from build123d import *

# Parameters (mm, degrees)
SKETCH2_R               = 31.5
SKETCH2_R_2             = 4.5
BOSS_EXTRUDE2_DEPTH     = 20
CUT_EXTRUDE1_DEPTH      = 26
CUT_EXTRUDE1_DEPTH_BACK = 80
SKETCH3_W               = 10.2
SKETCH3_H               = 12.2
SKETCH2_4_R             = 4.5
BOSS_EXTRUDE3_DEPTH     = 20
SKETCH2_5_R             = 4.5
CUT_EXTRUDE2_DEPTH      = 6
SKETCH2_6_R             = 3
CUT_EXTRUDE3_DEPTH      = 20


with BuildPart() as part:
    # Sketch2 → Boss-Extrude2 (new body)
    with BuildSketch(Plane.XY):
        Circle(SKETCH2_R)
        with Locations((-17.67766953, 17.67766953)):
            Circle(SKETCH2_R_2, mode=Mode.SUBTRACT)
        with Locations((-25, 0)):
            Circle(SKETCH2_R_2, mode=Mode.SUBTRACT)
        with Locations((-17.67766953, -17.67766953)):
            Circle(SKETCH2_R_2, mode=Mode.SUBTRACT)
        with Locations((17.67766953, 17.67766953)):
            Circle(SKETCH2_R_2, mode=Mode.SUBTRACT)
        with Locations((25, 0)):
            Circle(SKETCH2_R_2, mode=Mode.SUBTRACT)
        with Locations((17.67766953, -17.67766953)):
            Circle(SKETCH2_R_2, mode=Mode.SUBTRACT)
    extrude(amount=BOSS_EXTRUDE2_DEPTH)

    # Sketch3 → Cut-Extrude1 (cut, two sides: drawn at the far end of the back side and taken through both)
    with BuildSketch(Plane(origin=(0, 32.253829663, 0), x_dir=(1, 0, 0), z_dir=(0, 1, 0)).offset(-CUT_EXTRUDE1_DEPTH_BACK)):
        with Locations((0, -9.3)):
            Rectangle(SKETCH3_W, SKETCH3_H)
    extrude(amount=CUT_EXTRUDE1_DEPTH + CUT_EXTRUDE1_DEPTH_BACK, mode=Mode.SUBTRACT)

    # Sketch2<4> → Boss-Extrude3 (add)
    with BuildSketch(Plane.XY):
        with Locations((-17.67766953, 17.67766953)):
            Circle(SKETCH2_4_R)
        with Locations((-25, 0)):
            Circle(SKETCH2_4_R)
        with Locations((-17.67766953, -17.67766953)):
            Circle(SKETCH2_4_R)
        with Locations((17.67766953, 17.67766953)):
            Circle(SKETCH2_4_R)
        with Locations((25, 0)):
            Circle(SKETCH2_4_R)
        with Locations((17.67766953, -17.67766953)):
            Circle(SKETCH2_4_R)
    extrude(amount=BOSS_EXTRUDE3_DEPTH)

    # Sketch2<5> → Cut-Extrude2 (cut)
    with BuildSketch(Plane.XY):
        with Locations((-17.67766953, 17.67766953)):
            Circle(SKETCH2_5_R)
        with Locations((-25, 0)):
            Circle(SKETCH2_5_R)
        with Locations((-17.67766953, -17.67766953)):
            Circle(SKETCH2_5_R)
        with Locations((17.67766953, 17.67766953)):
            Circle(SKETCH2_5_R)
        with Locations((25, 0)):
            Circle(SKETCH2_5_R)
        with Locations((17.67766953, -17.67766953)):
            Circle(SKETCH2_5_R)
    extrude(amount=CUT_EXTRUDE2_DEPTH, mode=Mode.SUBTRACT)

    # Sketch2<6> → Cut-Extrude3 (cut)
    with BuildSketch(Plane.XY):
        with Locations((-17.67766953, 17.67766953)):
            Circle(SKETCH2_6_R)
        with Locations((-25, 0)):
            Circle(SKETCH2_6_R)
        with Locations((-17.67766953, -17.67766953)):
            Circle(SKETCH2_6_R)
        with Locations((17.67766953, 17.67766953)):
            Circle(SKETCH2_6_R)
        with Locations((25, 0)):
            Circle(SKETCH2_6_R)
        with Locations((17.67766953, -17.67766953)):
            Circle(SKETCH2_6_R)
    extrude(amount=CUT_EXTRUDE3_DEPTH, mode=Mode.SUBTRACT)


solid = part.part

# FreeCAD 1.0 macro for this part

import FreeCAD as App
import Part
import Sketcher

V = App.Vector

doc = App.newDocument("Part")
params = doc.addObject("Spreadsheet::Sheet", "Params")
for row, (alias, value) in enumerate([
    ("sketch1_diameter", "63 mm"),
    ("sketch1_diameter2", "9 mm"),
    ("pad1_length", "20 mm"),
    ("sketch2_width", "10.2 mm"),
    ("sketch2_height", "12.2 mm"),
    ("sketch3_diameter", "9 mm"),
    ("pad2_length", "20 mm"),
    ("sketch4_diameter", "9 mm"),
    ("pocket2_length", "6 mm"),
    ("sketch5_diameter", "6 mm"),
    ("pocket3_length", "20 mm"),
], start=1):
    params.set(f"A{row}", alias)
    params.set(f"B{row}", "=" + value)
    params.setAlias(f"B{row}", alias)

body = doc.addObject("PartDesign::Body", "Body")

sketch1 = body.newObject("Sketcher::SketchObject", "Sketch")
sketch1.AttachmentSupport = (doc.getObject("XY_Plane"), [""])
sketch1.MapMode = "FlatFace"
sketch1.addGeometry(Part.Circle(V(0, 0, 0), V(0, 0, 1), 31.5), False)
sketch1.addGeometry(Part.Circle(V(-17.7, -17.7, 0), V(0, 0, 1), 4.5), False)
sketch1.addGeometry(Part.Circle(V(-25, 0, 0), V(0, 0, 1), 4.5), False)
sketch1.addGeometry(Part.Circle(V(17.7, -17.7, 0), V(0, 0, 1), 4.5), False)
sketch1.addGeometry(Part.Circle(V(25, 0, 0), V(0, 0, 1), 4.5), False)
sketch1.addGeometry(Part.Circle(V(-17.7, 17.7, 0), V(0, 0, 1), 4.5), False)
sketch1.addGeometry(Part.Circle(V(17.7, 17.7, 0), V(0, 0, 1), 4.5), False)
sketch1.addConstraint(Sketcher.Constraint("Coincident", 0, 3, -1, 1))
sketch1.addConstraint(Sketcher.Constraint("Equal", 1, 2))
sketch1.addConstraint(Sketcher.Constraint("Equal", 2, 3))
sketch1.addConstraint(Sketcher.Constraint("Equal", 3, 4))
sketch1.addConstraint(Sketcher.Constraint("Equal", 4, 5))
sketch1.addConstraint(Sketcher.Constraint("Equal", 5, 6))
sketch1.addConstraint(Sketcher.Constraint("Symmetric", 2, 3, 4, 3, -1, 1))
sketch1.addConstraint(Sketcher.Constraint("Symmetric", 3, 3, 5, 3, -1, 1))
sketch1.addConstraint(Sketcher.Constraint("Symmetric", 1, 3, 6, 3, -1, 1))
sketch1.addConstraint(Sketcher.Constraint("Symmetric", 1, 3, 3, 3, -2))
sketch1.addConstraint(Sketcher.Constraint("PointOnObject", 2, 3, -1))
sketch1.addConstraint(Sketcher.Constraint("Diameter", 0, 63.0))
sketch1.addConstraint(Sketcher.Constraint("Diameter", 1, 9.0))
sketch1.addConstraint(Sketcher.Constraint("DistanceX", 2, 3, -1, 1, 25.0))
sketch1.addConstraint(Sketcher.Constraint("DistanceX", 1, 3, -1, 1, 17.67767))
sketch1.addConstraint(Sketcher.Constraint("DistanceY", 1, 3, -1, 1, 17.67767))
sketch1.setExpression("Constraints[11]", "Params.sketch1_diameter")
sketch1.setExpression("Constraints[12]", "Params.sketch1_diameter2")
pad1 = body.newObject("PartDesign::Pad", "Pad")
pad1.Profile = sketch1
pad1.setExpression("Length", "Params.pad1_length")

sketch2 = body.newObject("Sketcher::SketchObject", "Sketch001")
sketch2.AttachmentSupport = (doc.getObject("XZ_Plane"), [""])
sketch2.MapMode = "FlatFace"
sketch2.AttachmentOffset = App.Placement(V(0, 0, -32.25383), App.Rotation())
sketch2.addGeometry(Part.LineSegment(V(-5, 3, 0), V(-5, 15, 0)), False)
sketch2.addGeometry(Part.LineSegment(V(-5, 15, 0), V(5, 15, 0)), False)
sketch2.addGeometry(Part.LineSegment(V(5, 15, 0), V(5, 3, 0)), False)
sketch2.addGeometry(Part.LineSegment(V(5, 3, 0), V(-5, 3, 0)), False)
sketch2.addConstraint(Sketcher.Constraint("Coincident", 0, 2, 1, 1))
sketch2.addConstraint(Sketcher.Constraint("Coincident", 1, 2, 2, 1))
sketch2.addConstraint(Sketcher.Constraint("Coincident", 2, 2, 3, 1))
sketch2.addConstraint(Sketcher.Constraint("Coincident", 3, 2, 0, 1))
sketch2.addConstraint(Sketcher.Constraint("Vertical", 0))
sketch2.addConstraint(Sketcher.Constraint("Horizontal", 1))
sketch2.addConstraint(Sketcher.Constraint("Vertical", 2))
sketch2.addConstraint(Sketcher.Constraint("Horizontal", 3))
sketch2.addConstraint(Sketcher.Constraint("DistanceX", 1, 1, 1, 2, 10.2))
sketch2.addConstraint(Sketcher.Constraint("DistanceY", 0, 1, 0, 2, 12.2))
sketch2.addConstraint(Sketcher.Constraint("DistanceX", 0, 2, -1, 1, 5.1))
sketch2.addConstraint(Sketcher.Constraint("DistanceY", -1, 1, 0, 2, 15.4))
sketch2.setExpression("Constraints[8]", "Params.sketch2_width")
sketch2.setExpression("Constraints[9]", "Params.sketch2_height")
pocket1 = body.newObject("PartDesign::Pocket", "Pocket")
pocket1.Profile = sketch2
pocket1.Type = "ThroughAll"
pocket1.Midplane = True

sketch3 = body.newObject("Sketcher::SketchObject", "Sketch002")
sketch3.AttachmentSupport = (doc.getObject("XY_Plane"), [""])
sketch3.MapMode = "FlatFace"
sketch3.addGeometry(Part.Circle(V(-17.7, 17.7, 0), V(0, 0, 1), 4.5), False)
sketch3.addGeometry(Part.Circle(V(-25, 0, 0), V(0, 0, 1), 4.5), False)
sketch3.addGeometry(Part.Circle(V(-17.7, -17.7, 0), V(0, 0, 1), 4.5), False)
sketch3.addGeometry(Part.Circle(V(17.7, 17.7, 0), V(0, 0, 1), 4.5), False)
sketch3.addGeometry(Part.Circle(V(25, 0, 0), V(0, 0, 1), 4.5), False)
sketch3.addGeometry(Part.Circle(V(17.7, -17.7, 0), V(0, 0, 1), 4.5), False)
sketch3.addConstraint(Sketcher.Constraint("Equal", 0, 1))
sketch3.addConstraint(Sketcher.Constraint("Equal", 1, 2))
sketch3.addConstraint(Sketcher.Constraint("Equal", 2, 3))
sketch3.addConstraint(Sketcher.Constraint("Equal", 3, 4))
sketch3.addConstraint(Sketcher.Constraint("Equal", 4, 5))
sketch3.addConstraint(Sketcher.Constraint("Symmetric", 2, 3, 3, 3, -1, 1))
sketch3.addConstraint(Sketcher.Constraint("Symmetric", 1, 3, 4, 3, -1, 1))
sketch3.addConstraint(Sketcher.Constraint("Symmetric", 0, 3, 5, 3, -1, 1))
sketch3.addConstraint(Sketcher.Constraint("Symmetric", 0, 3, 3, 3, -2))
sketch3.addConstraint(Sketcher.Constraint("PointOnObject", 1, 3, -1))
sketch3.addConstraint(Sketcher.Constraint("Diameter", 0, 9.0))
sketch3.addConstraint(Sketcher.Constraint("DistanceX", 1, 3, -1, 1, 25.0))
sketch3.addConstraint(Sketcher.Constraint("DistanceX", 0, 3, -1, 1, 17.67767))
sketch3.addConstraint(Sketcher.Constraint("DistanceY", -1, 1, 0, 3, 17.67767))
sketch3.setExpression("Constraints[10]", "Params.sketch3_diameter")
pad2 = body.newObject("PartDesign::Pad", "Pad001")
pad2.Profile = sketch3
pad2.setExpression("Length", "Params.pad2_length")

sketch4 = body.newObject("Sketcher::SketchObject", "Sketch003")
sketch4.AttachmentSupport = (doc.getObject("XY_Plane"), [""])
sketch4.MapMode = "FlatFace"
sketch4.addGeometry(Part.Circle(V(-17.7, 17.7, 0), V(0, 0, 1), 4.5), False)
sketch4.addGeometry(Part.Circle(V(-25, 0, 0), V(0, 0, 1), 4.5), False)
sketch4.addGeometry(Part.Circle(V(-17.7, -17.7, 0), V(0, 0, 1), 4.5), False)
sketch4.addGeometry(Part.Circle(V(17.7, 17.7, 0), V(0, 0, 1), 4.5), False)
sketch4.addGeometry(Part.Circle(V(25, 0, 0), V(0, 0, 1), 4.5), False)
sketch4.addGeometry(Part.Circle(V(17.7, -17.7, 0), V(0, 0, 1), 4.5), False)
sketch4.addConstraint(Sketcher.Constraint("Equal", 0, 1))
sketch4.addConstraint(Sketcher.Constraint("Equal", 1, 2))
sketch4.addConstraint(Sketcher.Constraint("Equal", 2, 3))
sketch4.addConstraint(Sketcher.Constraint("Equal", 3, 4))
sketch4.addConstraint(Sketcher.Constraint("Equal", 4, 5))
sketch4.addConstraint(Sketcher.Constraint("Symmetric", 2, 3, 3, 3, -1, 1))
sketch4.addConstraint(Sketcher.Constraint("Symmetric", 1, 3, 4, 3, -1, 1))
sketch4.addConstraint(Sketcher.Constraint("Symmetric", 0, 3, 5, 3, -1, 1))
sketch4.addConstraint(Sketcher.Constraint("Symmetric", 0, 3, 3, 3, -2))
sketch4.addConstraint(Sketcher.Constraint("PointOnObject", 1, 3, -1))
sketch4.addConstraint(Sketcher.Constraint("Diameter", 0, 9.0))
sketch4.addConstraint(Sketcher.Constraint("DistanceX", 1, 3, -1, 1, 25.0))
sketch4.addConstraint(Sketcher.Constraint("DistanceX", 0, 3, -1, 1, 17.67767))
sketch4.addConstraint(Sketcher.Constraint("DistanceY", -1, 1, 0, 3, 17.67767))
sketch4.setExpression("Constraints[10]", "Params.sketch4_diameter")
pocket2 = body.newObject("PartDesign::Pocket", "Pocket001")
pocket2.Profile = sketch4
pocket2.setExpression("Length", "Params.pocket2_length")
pocket2.Reversed = True

sketch5 = body.newObject("Sketcher::SketchObject", "Sketch004")
sketch5.AttachmentSupport = (doc.getObject("XY_Plane"), [""])
sketch5.MapMode = "FlatFace"
sketch5.addGeometry(Part.Circle(V(-17.7, 17.7, 0), V(0, 0, 1), 3), False)
sketch5.addGeometry(Part.Circle(V(-25, 0, 0), V(0, 0, 1), 3), False)
sketch5.addGeometry(Part.Circle(V(-17.7, -17.7, 0), V(0, 0, 1), 3), False)
sketch5.addGeometry(Part.Circle(V(17.7, 17.7, 0), V(0, 0, 1), 3), False)
sketch5.addGeometry(Part.Circle(V(25, 0, 0), V(0, 0, 1), 3), False)
sketch5.addGeometry(Part.Circle(V(17.7, -17.7, 0), V(0, 0, 1), 3), False)
sketch5.addConstraint(Sketcher.Constraint("Equal", 0, 1))
sketch5.addConstraint(Sketcher.Constraint("Equal", 1, 2))
sketch5.addConstraint(Sketcher.Constraint("Equal", 2, 3))
sketch5.addConstraint(Sketcher.Constraint("Equal", 3, 4))
sketch5.addConstraint(Sketcher.Constraint("Equal", 4, 5))
sketch5.addConstraint(Sketcher.Constraint("Symmetric", 2, 3, 3, 3, -1, 1))
sketch5.addConstraint(Sketcher.Constraint("Symmetric", 1, 3, 4, 3, -1, 1))
sketch5.addConstraint(Sketcher.Constraint("Symmetric", 0, 3, 5, 3, -1, 1))
sketch5.addConstraint(Sketcher.Constraint("Symmetric", 0, 3, 3, 3, -2))
sketch5.addConstraint(Sketcher.Constraint("PointOnObject", 1, 3, -1))
sketch5.addConstraint(Sketcher.Constraint("Diameter", 0, 6.0))
sketch5.addConstraint(Sketcher.Constraint("DistanceX", 1, 3, -1, 1, 25.0))
sketch5.addConstraint(Sketcher.Constraint("DistanceX", 0, 3, -1, 1, 17.67767))
sketch5.addConstraint(Sketcher.Constraint("DistanceY", -1, 1, 0, 3, 17.67767))
sketch5.setExpression("Constraints[10]", "Params.sketch5_diameter")
pocket3 = body.newObject("PartDesign::Pocket", "Pocket002")
pocket3.Profile = sketch5
pocket3.setExpression("Length", "Params.pocket3_length")
pocket3.Reversed = True

doc.recompute()
